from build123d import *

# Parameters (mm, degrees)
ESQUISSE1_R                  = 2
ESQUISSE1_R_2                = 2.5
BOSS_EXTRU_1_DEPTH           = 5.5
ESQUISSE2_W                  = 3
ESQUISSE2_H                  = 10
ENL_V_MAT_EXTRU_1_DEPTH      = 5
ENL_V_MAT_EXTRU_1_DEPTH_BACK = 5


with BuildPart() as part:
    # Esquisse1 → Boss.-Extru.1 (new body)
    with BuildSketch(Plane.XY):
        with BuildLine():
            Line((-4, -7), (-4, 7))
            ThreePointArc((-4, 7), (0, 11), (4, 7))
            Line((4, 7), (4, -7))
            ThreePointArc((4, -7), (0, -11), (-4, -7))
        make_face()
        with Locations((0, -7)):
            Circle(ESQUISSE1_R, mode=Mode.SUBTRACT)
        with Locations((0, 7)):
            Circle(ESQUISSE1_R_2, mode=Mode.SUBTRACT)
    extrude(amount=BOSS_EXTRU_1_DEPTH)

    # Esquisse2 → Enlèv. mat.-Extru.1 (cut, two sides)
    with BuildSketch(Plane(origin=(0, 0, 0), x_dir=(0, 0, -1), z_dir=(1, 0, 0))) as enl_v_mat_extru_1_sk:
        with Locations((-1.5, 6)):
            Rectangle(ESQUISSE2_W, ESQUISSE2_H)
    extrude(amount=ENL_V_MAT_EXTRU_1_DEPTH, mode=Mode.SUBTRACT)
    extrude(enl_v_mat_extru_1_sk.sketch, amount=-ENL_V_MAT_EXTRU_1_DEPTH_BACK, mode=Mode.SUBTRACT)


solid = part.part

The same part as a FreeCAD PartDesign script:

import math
import FreeCAD as App
import Part
import Sketcher
Q = App.Units.Quantity

doc = App.newDocument("Part")
body = doc.addObject("PartDesign::Body", "Body")

# Sketch on XY plane
sketch1 = body.newObject("Sketcher::SketchObject", "Sketch")
sketch1.AttachmentSupport = (doc.getObject("XY_Plane"), [""])
sketch1.MapMode = "FlatFace"
sketch1.addGeometry([
    Part.LineSegment(App.Vector(-4, 7, 0), App.Vector(-4, -7, 0)),  # 0
    Part.ArcOfCircle(Part.Circle(App.Vector(0, -7, 0), App.Vector(0, 0, 1), 4), math.radians(180), math.radians(360)),  # 1
    Part.LineSegment(App.Vector(4, -7, 0), App.Vector(4, 7, 0)),  # 2
    Part.ArcOfCircle(Part.Circle(App.Vector(0, 7, 0), App.Vector(0, 0, 1), 4), math.radians(0), math.radians(180)),  # 3
    Part.Circle(App.Vector(0, -7, 0), App.Vector(0, 0, 1), 2),  # 4
    Part.Circle(App.Vector(0, 7, 0), App.Vector(0, 0, 1), 2.5),  # 5
], False)
sketch1.addConstraint([
    Sketcher.Constraint("Tangent", 0, 2, 1, 1),
    Sketcher.Constraint("Tangent", 1, 2, 2, 1),
    Sketcher.Constraint("Tangent", 2, 2, 3, 1),
    Sketcher.Constraint("Tangent", 3, 2, 0, 1),
    Sketcher.Constraint("Vertical", 0),
    Sketcher.Constraint("Vertical", 2),
    Sketcher.Constraint("Coincident", 4, 3, 1, 3),
    Sketcher.Constraint("Coincident", 5, 3, 3, 3),
    Sketcher.Constraint("Symmetric", 1, 3, 3, 3, -1, 1),
    Sketcher.Constraint("Diameter", 4, Q("4 mm")),
    Sketcher.Constraint("Diameter", 5, Q("5 mm")),
    Sketcher.Constraint("Radius", 1, Q("4 mm")),
    Sketcher.Constraint("DistanceY", 0, 2, 0, 1, Q("14 mm")),
])
pad1 = body.newObject("PartDesign::Pad", "Pad")
pad1.Profile = sketch1
pad1.Length = 5.5

# Sketch on YZ plane
sketch2 = body.newObject("Sketcher::SketchObject", "Sketch001")
sketch2.AttachmentSupport = (doc.getObject("YZ_Plane"), [""])
sketch2.MapMode = "FlatFace"
sketch2.addGeometry([
    Part.LineSegment(App.Vector(11, 3, 0), App.Vector(1, 3, 0)),
    Part.LineSegment(App.Vector(1, 3, 0), App.Vector(1, 0, 0)),
    Part.LineSegment(App.Vector(1, 0, 0), App.Vector(11, 0, 0)),
    Part.LineSegment(App.Vector(11, 0, 0), App.Vector(11, 3, 0)),
], False)
sketch2.addConstraint([
    Sketcher.Constraint("Coincident", 0, 2, 1, 1),
    Sketcher.Constraint("Coincident", 1, 2, 2, 1),
    Sketcher.Constraint("Coincident", 2, 2, 3, 1),
    Sketcher.Constraint("Coincident", 3, 2, 0, 1),
    Sketcher.Constraint("Horizontal", 0),
    Sketcher.Constraint("Vertical", 1),
    Sketcher.Constraint("Horizontal", 2),
    Sketcher.Constraint("Vertical", 3),
    Sketcher.Constraint("PointOnObject", 1, 2, -1),
    Sketcher.Constraint("DistanceX", 0, 2, 0, 1, Q("10 mm")),
    Sketcher.Constraint("DistanceY", 1, 2, 1, 1, Q("3 mm")),
    Sketcher.Constraint("DistanceX", -1, 1, 0, 2, Q("1 mm")),
])
pocket1 = body.newObject("PartDesign::Pocket", "Pocket")
pocket1.Profile = sketch2
pocket1.Type = "ThroughAll"
pocket1.Midplane = True

doc.recompute()
